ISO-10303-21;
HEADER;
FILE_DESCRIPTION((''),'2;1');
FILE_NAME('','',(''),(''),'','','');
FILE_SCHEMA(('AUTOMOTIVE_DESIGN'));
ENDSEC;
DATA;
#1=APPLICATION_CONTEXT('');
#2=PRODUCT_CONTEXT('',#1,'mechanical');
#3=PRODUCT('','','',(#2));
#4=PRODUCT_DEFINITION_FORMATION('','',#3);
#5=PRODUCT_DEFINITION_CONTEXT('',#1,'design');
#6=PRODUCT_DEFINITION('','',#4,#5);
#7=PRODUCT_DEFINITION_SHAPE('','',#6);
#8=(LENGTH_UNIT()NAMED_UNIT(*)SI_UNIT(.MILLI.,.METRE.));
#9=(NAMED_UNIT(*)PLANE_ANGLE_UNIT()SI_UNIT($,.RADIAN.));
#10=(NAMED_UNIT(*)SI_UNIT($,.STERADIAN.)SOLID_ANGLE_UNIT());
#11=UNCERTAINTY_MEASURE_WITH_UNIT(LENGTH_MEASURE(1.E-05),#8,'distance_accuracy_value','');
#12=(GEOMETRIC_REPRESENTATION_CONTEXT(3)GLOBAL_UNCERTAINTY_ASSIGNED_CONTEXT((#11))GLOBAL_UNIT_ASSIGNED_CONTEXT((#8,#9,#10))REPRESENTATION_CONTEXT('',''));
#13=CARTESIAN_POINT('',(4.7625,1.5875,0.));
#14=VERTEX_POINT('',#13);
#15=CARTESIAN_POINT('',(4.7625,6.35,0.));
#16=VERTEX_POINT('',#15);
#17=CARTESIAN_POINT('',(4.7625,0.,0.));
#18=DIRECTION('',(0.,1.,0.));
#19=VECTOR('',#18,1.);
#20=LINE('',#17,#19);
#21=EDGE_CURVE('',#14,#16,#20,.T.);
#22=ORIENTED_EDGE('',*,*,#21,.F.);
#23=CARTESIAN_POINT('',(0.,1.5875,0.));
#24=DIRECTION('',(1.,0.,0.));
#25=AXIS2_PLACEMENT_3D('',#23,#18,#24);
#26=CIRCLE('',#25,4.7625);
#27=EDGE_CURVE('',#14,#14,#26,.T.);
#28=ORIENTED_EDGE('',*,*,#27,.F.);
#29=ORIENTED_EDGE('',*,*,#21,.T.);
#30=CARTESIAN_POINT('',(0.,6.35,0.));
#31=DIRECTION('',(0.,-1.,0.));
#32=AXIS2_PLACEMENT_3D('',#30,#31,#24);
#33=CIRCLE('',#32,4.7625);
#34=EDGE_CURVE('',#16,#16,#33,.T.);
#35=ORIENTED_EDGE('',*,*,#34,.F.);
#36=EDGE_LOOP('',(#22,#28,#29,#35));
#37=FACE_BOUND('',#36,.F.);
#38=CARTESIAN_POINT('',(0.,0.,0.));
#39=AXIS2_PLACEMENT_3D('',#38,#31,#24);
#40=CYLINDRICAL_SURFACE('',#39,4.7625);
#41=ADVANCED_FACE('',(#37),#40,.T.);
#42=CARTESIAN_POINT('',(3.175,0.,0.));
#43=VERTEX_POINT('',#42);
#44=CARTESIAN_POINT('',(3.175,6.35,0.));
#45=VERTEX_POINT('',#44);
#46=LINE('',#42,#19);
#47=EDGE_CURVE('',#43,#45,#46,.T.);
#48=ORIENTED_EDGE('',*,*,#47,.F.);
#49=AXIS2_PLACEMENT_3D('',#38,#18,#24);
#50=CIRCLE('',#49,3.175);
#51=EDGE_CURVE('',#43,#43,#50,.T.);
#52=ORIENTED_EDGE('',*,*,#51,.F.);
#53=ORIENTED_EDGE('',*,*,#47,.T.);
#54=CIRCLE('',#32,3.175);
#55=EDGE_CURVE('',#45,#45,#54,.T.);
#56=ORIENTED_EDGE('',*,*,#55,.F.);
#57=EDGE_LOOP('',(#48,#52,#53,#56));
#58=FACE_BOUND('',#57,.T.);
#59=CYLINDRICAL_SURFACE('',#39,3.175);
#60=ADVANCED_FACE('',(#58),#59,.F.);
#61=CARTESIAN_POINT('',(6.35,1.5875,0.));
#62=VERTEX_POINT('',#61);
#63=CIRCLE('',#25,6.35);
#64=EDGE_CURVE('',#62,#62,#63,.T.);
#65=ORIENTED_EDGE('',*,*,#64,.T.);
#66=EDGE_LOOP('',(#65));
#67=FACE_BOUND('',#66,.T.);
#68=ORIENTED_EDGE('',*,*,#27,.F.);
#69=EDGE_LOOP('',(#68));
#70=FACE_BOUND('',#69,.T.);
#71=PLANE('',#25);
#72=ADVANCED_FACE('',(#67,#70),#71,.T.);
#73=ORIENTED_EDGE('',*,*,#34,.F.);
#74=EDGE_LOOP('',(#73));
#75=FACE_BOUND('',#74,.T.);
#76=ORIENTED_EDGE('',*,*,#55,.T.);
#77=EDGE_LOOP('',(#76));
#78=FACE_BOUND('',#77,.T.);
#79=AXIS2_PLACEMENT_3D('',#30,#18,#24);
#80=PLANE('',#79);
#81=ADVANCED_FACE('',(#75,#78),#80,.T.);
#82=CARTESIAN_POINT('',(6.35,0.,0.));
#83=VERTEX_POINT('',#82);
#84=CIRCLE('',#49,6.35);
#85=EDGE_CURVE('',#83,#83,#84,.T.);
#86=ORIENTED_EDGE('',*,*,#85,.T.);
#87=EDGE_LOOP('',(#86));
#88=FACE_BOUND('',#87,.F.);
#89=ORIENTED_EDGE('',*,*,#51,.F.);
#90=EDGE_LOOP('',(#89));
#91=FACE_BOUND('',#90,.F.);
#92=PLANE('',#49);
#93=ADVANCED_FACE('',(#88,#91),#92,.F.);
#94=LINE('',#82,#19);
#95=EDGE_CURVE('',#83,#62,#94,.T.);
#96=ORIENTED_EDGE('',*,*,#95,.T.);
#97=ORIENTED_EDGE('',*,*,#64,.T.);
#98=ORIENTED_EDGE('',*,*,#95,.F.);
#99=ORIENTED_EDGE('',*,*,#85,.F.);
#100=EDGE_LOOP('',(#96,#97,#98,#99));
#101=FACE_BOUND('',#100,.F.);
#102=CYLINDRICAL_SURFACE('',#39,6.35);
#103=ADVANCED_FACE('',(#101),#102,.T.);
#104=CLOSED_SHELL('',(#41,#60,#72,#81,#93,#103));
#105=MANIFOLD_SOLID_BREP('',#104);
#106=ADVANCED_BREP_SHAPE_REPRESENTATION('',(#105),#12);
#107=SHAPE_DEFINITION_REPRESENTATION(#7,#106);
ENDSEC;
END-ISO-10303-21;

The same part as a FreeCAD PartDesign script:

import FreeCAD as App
import Part
import Sketcher
from FreeCAD import Vector
Q = App.Units.Quantity

doc = App.newDocument("Part")
params = doc.addObject("Spreadsheet::Sheet", "Params")
for row, (alias, value) in enumerate([
    ("sketch1_diameter", "0.25 in"),
    ("sketch1_diameter2", "0.375 in"),
    ("pad1_length", "0.375 in"),
    ("sketch2_diameter", "0.5 in"),
    ("sketch2_diameter2", "0.375 in"),
    ("pad2_length", "0.0625 in"),
    ("sketch3_diameter", "0.5 in"),
    ("pocket1_length", "0.125 in"),
], start=1):
    params.set(f"A{row}", alias)
    params.set(f"B{row}", "=" + value)
    params.setAlias(f"B{row}", alias)

body = doc.addObject("PartDesign::Body", "Body")

# Sketch on XZ plane
sketch1 = body.newObject("Sketcher::SketchObject", "Sketch")
sketch1.AttachmentSupport = (doc.getObject("XZ_Plane"), [""])
sketch1.MapMode = "FlatFace"
sketch1.addGeometry(Part.Circle(Vector(0, 0, 0), Vector(0, 0, 1), 4.8), False)
sketch1.addGeometry(Part.Circle(Vector(0, 0, 0), Vector(0, 0, 1), 3.2), False)
sketch1.addConstraint(Sketcher.Constraint("Coincident", 0, 3, -1, 1))
sketch1.addConstraint(Sketcher.Constraint("Coincident", 1, 3, -1, 1))
sketch1.addConstraint(Sketcher.Constraint("Diameter", 1, Q("0.25 in")))
sketch1.addConstraint(Sketcher.Constraint("Diameter", 0, Q("0.375 in")))
sketch1.setExpression("Constraints[2]", "Params.sketch1_diameter")
sketch1.setExpression("Constraints[3]", "Params.sketch1_diameter2")
pad1 = body.newObject("PartDesign::Pad", "Pad")
pad1.Profile = sketch1
pad1.setExpression("Length", "Params.pad1_length")
pad1.Reversed = True

# Sketch on XZ plane
sketch2 = body.newObject("Sketcher::SketchObject", "Sketch001")
sketch2.AttachmentSupport = (doc.getObject("XZ_Plane"), [""])
sketch2.MapMode = "FlatFace"
sketch2.addGeometry(Part.Circle(Vector(0, 0, 0), Vector(0, 0, 1), 6.3), False)
sketch2.addGeometry(Part.Circle(Vector(0, 0, 0), Vector(0, 0, 1), 4.8), False)
sketch2.addConstraint(Sketcher.Constraint("Coincident", 0, 3, -1, 1))
sketch2.addConstraint(Sketcher.Constraint("Coincident", 1, 3, -1, 1))
sketch2.addConstraint(Sketcher.Constraint("Diameter", 0, Q("0.5 in")))
sketch2.addConstraint(Sketcher.Constraint("Diameter", 1, Q("0.375 in")))
sketch2.setExpression("Constraints[2]", "Params.sketch2_diameter")
sketch2.setExpression("Constraints[3]", "Params.sketch2_diameter2")
pad2 = body.newObject("PartDesign::Pad", "Pad001")
pad2.Profile = sketch2
pad2.setExpression("Length", "Params.pad2_length")
pad2.Reversed = True

# Sketch on XZ plane
sketch3 = body.newObject("Sketcher::SketchObject", "Sketch002")
sketch3.AttachmentSupport = (doc.getObject("XZ_Plane"), [""])
sketch3.MapMode = "FlatFace"
sketch3.AttachmentOffset = App.Placement(Vector(0, 0, -0.375 * 25.4), App.Rotation())
sketch3.addGeometry(Part.Circle(Vector(0, 0, 0), Vector(0, 0, 1), 6), False)
sketch3.addConstraint(Sketcher.Constraint("Coincident", 0, 3, -1, 1))
sketch3.addConstraint(Sketcher.Constraint("Diameter", 0, Q("0.5 in")))
sketch3.setExpression("Constraints[1]", "Params.sketch3_diameter")
pocket1 = body.newObject("PartDesign::Pocket", "Pocket")
pocket1.Profile = sketch3
pocket1.setExpression("Length", "Params.pocket1_length")
pocket1.Reversed = True

doc.recompute()
